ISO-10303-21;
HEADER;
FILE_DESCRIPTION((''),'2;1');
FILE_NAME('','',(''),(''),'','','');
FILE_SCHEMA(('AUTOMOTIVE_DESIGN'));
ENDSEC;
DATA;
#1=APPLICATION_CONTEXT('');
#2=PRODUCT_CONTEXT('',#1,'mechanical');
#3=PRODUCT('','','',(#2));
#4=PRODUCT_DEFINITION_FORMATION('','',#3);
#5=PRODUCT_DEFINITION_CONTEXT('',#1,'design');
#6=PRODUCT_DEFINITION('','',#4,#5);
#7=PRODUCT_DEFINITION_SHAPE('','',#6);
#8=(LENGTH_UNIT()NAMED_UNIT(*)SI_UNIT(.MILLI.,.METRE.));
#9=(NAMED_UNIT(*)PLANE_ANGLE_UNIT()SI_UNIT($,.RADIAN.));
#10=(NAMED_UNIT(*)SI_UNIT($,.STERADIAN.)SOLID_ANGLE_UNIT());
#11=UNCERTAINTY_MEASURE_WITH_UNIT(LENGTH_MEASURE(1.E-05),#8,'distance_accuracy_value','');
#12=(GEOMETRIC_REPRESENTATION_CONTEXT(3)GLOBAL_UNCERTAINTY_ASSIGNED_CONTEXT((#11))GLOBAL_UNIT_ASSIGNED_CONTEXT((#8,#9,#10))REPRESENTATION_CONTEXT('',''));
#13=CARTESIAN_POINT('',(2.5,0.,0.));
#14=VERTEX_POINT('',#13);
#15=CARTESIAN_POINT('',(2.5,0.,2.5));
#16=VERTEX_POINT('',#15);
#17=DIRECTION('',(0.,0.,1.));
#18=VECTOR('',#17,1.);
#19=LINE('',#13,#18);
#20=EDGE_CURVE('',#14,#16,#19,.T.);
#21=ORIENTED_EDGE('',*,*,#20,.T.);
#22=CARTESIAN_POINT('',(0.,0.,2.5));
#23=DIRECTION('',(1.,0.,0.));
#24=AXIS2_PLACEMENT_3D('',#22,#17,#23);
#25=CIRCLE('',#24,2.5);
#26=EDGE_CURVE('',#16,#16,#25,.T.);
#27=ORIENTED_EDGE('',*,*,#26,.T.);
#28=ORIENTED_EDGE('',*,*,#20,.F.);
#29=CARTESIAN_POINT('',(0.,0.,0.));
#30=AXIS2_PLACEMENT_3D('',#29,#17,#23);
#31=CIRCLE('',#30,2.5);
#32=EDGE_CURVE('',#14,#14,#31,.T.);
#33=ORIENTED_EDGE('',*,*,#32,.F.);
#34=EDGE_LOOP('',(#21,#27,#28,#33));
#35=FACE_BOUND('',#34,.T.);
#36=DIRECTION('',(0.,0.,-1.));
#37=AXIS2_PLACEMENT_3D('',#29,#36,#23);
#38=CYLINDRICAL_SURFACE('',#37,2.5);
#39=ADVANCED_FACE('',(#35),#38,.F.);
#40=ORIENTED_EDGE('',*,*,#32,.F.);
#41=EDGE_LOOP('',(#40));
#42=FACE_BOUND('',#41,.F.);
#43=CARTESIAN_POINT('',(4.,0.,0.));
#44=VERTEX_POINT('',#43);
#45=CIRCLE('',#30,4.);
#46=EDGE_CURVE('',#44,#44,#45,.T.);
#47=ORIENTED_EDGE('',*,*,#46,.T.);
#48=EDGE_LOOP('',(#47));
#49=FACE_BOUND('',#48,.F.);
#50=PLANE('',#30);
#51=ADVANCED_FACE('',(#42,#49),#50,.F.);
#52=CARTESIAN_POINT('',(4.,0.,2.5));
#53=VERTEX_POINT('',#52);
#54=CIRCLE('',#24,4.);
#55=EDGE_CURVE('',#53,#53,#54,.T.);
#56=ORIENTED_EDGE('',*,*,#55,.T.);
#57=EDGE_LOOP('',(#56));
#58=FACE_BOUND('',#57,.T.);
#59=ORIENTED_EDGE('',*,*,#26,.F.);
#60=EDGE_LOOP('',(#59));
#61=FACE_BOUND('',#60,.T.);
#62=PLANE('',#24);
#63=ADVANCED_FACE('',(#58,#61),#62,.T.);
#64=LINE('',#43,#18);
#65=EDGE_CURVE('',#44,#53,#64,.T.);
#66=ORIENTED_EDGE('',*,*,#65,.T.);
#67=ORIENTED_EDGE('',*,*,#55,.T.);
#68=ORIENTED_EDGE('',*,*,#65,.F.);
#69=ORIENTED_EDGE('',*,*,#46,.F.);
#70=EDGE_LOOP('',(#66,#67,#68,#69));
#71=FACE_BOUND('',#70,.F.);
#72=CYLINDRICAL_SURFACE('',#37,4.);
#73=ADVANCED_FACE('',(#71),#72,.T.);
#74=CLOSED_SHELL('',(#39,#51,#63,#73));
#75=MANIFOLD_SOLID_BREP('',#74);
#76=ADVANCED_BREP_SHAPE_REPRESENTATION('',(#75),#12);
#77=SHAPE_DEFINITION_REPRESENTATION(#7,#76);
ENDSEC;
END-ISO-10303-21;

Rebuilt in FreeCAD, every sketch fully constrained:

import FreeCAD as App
import Part
import Sketcher
from FreeCAD import Vector

doc = App.newDocument("Part")
body = doc.addObject("PartDesign::Body", "Body")

# Sketch on XY plane
sketch1 = body.newObject("Sketcher::SketchObject", "Sketch")
sketch1.AttachmentSupport = (doc.getObject("XY_Plane"), [""])
sketch1.MapMode = "FlatFace"
sketch1.addGeometry([
    Part.Circle(Vector(0, 0, 0), Vector(0, 0, 1), 4),
    Part.Circle(Vector(0, 0, 0), Vector(0, 0, 1), 2.5),
], False)
sketch1.addConstraint([
    Sketcher.Constraint("Coincident", 0, 3, -1, 1),
    Sketcher.Constraint("Coincident", 1, 3, -1, 1),
    Sketcher.Constraint("Diameter", 0, 8.0),
    Sketcher.Constraint("Diameter", 1, 5.0),
])
pad1 = body.newObject("PartDesign::Pad", "Pad")
pad1.Profile = sketch1
pad1.Length = 2.5

doc.recompute()
